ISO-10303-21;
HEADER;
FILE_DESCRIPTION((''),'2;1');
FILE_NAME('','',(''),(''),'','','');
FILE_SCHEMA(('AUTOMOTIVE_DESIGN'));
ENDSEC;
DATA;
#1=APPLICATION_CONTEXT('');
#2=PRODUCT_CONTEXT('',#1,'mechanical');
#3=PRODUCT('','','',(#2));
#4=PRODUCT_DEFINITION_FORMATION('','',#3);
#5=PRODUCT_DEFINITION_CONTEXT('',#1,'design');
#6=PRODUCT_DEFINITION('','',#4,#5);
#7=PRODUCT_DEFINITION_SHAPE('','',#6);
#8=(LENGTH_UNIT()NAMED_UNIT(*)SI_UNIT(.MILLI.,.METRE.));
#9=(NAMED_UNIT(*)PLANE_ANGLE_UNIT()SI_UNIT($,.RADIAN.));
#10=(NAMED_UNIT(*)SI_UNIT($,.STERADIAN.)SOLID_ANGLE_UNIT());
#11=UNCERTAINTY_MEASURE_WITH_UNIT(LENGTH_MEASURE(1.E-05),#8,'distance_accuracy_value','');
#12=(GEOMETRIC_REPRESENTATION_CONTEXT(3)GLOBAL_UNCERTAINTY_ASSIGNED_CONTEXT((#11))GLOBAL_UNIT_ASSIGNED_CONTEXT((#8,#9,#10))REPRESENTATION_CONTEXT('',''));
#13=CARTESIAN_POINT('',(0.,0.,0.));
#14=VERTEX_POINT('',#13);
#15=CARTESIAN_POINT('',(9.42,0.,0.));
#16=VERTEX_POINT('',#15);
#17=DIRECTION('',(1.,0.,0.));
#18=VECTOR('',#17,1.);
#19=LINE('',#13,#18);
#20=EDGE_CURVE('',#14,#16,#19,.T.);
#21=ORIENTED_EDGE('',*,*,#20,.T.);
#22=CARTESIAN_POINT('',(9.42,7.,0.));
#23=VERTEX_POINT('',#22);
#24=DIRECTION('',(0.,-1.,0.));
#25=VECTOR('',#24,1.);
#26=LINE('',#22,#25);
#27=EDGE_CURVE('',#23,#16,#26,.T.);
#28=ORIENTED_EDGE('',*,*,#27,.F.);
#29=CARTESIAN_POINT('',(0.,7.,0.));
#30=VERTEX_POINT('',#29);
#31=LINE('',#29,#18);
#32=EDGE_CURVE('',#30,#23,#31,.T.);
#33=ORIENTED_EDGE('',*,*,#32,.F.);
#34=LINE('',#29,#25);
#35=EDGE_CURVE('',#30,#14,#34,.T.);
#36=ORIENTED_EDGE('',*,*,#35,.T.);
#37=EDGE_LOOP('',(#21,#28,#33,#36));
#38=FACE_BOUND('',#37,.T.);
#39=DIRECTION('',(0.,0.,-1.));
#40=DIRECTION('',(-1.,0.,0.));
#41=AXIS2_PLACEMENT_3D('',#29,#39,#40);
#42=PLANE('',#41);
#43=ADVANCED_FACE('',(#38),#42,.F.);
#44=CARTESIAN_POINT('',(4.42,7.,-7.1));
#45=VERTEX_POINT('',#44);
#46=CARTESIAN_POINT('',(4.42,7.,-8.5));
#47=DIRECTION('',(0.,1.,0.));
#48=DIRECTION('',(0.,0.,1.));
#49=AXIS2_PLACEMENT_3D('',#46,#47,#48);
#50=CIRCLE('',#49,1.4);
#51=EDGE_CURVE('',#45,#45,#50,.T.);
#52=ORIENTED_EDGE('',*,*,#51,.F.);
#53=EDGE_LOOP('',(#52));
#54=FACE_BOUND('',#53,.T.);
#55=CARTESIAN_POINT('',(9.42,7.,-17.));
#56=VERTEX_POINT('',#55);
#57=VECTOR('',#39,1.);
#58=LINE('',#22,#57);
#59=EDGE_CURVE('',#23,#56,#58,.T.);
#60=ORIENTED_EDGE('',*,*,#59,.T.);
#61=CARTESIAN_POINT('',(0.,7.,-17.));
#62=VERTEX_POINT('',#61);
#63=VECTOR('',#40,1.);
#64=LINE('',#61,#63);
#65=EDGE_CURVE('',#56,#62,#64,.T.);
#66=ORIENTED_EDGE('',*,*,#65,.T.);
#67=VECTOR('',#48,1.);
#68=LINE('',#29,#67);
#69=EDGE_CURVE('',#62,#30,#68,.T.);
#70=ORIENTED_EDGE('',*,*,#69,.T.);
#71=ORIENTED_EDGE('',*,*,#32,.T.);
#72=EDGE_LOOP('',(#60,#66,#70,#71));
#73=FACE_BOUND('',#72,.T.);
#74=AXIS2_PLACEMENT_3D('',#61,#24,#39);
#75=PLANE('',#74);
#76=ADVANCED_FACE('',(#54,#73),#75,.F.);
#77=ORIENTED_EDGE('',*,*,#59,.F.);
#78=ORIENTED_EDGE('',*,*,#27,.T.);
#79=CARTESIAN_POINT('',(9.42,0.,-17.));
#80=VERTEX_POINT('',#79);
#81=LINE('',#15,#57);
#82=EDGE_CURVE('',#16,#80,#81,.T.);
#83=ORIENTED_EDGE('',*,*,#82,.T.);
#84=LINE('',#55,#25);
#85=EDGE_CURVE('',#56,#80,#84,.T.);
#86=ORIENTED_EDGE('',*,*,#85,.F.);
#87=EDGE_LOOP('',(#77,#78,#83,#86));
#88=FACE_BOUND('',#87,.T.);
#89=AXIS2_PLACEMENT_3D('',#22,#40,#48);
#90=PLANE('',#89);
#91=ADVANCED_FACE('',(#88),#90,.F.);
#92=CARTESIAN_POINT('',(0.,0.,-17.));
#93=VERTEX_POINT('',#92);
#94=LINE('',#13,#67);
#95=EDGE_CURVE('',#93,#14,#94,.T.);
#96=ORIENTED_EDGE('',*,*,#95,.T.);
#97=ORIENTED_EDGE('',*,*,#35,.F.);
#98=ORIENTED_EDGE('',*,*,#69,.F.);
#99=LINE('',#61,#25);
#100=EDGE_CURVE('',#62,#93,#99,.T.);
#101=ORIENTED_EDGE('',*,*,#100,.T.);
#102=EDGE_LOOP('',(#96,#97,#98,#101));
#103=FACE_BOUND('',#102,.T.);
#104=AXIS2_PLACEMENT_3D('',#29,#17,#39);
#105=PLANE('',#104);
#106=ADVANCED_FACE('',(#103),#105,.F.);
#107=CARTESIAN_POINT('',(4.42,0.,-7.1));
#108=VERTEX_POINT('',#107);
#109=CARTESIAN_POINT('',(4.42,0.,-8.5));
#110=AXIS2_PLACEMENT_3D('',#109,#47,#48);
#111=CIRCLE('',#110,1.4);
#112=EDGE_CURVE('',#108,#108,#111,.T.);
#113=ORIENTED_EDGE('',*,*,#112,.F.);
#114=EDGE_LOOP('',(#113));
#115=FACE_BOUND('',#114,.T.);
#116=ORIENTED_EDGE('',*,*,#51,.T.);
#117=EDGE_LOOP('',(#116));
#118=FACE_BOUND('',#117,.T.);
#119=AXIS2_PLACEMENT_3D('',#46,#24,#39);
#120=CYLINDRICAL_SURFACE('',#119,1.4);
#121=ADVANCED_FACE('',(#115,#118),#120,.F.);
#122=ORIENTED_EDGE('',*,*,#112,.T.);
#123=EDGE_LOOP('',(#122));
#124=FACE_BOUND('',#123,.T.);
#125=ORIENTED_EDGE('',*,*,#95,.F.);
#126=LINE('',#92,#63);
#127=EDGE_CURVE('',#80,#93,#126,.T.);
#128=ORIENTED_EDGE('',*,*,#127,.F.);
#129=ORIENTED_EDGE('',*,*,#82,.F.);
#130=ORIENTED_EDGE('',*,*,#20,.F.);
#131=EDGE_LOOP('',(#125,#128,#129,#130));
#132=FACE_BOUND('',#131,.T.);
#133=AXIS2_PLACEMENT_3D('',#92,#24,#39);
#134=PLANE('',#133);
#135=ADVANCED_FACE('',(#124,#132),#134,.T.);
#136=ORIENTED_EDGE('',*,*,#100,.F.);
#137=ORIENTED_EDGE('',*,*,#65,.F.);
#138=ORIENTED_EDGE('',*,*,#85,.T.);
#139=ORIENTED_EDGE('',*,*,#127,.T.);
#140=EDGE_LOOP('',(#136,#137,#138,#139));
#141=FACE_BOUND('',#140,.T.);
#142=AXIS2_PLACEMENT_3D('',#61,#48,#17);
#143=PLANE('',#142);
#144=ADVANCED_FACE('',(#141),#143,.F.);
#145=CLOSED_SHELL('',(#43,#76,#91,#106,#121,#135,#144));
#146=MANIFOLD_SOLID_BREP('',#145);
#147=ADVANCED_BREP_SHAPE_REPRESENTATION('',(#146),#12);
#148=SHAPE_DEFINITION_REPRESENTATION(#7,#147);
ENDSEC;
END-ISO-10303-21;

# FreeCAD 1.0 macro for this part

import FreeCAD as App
import Part
import Sketcher
Q = App.Units.Quantity


def add_polygon(sketch, points):
    """Adds a closed chain of lines whose ends are joined by coincident constraints."""
    first, n = sketch.GeometryCount, len(points)
    for a, b in zip(points, points[1:] + points[:1]):
        sketch.addGeometry(Part.LineSegment(App.Vector(*a, 0), App.Vector(*b, 0)), False)
    for i in range(n):
        sketch.addConstraint(Sketcher.Constraint("Coincident", first + i, 2, first + (i + 1) % n, 1))

doc = App.newDocument("Part")
body = doc.addObject("PartDesign::Body", "Body")

# Sketch on XZ plane
sketch1 = body.newObject("Sketcher::SketchObject", "Sketch")
sketch1.AttachmentSupport = (doc.getObject("XZ_Plane"), [""])
sketch1.MapMode = "FlatFace"
add_polygon(sketch1, [(0, -17), (0, 0), (9.4, 0), (9.4, -17)])  # lines 0-3
sketch1.addGeometry(Part.Circle(App.Vector(4.4, -8.5, 0), App.Vector(0, 0, 1), 1.4), False)  # 4
sketch1.addConstraint(Sketcher.Constraint("Vertical", 0))
sketch1.addConstraint(Sketcher.Constraint("Horizontal", 1))
sketch1.addConstraint(Sketcher.Constraint("Vertical", 2))
sketch1.addConstraint(Sketcher.Constraint("Horizontal", 3))
sketch1.addConstraint(Sketcher.Constraint("Coincident", 0, 2, -1, 1))
sketch1.addConstraint(Sketcher.Constraint("Diameter", 4, Q("2.8 mm")))
sketch1.addConstraint(Sketcher.Constraint("DistanceY", 0, 1, 0, 2, Q("17 mm")))
sketch1.addConstraint(Sketcher.Constraint("DistanceX", 4, 3, 1, 2, Q("5 mm")))
sketch1.addConstraint(Sketcher.Constraint("DistanceX", 1, 1, 1, 2, Q("9.42 mm")))
sketch1.addConstraint(Sketcher.Constraint("DistanceY", 4, 3, -1, 1, Q("8.5 mm")))
pad1 = body.newObject("PartDesign::Pad", "Pad")
pad1.Profile = sketch1
pad1.Length = 7
pad1.Reversed = True

doc.recompute()
